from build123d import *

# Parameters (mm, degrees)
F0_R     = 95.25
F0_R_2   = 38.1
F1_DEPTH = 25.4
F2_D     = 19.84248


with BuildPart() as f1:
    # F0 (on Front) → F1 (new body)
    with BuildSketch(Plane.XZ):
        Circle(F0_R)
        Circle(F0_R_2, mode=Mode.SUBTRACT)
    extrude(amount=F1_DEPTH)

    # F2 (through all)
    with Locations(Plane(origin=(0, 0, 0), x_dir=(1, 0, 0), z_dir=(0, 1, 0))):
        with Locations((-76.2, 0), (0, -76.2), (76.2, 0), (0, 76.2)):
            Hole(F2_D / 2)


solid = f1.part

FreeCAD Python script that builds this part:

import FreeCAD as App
import Part
import Sketcher
from FreeCAD import Vector
Q = App.Units.Quantity

doc = App.newDocument("Part")
params = doc.addObject("Spreadsheet::Sheet", "Params")
for row, (alias, value) in enumerate([
    ("sketch1_diameter", "3 in"),
    ("sketch1_diameter2", "7.5 in"),
    ("pad1_length", "1 in"),
    ("hole_diameter", "0.7812 in"),
], start=1):
    params.set(f"A{row}", alias)
    params.set(f"B{row}", "=" + value)
    params.setAlias(f"B{row}", alias)

body = doc.addObject("PartDesign::Body", "Body")

sketch1 = body.newObject("Sketcher::SketchObject", "Sketch")
sketch1.AttachmentSupport = (doc.getObject("XZ_Plane"), [""])
sketch1.MapMode = "FlatFace"
sketch1.addGeometry([
    Part.Circle(Vector(0, 0, 0), Vector(0, 0, 1), 95),
    Part.Circle(Vector(0, 0, 0), Vector(0, 0, 1), 38),
], False)
sketch1.addConstraint([
    Sketcher.Constraint("Coincident", 0, 3, -1, 1),
    Sketcher.Constraint("Coincident", 1, 3, -1, 1),
    Sketcher.Constraint("Diameter", 1, Q("3 in")),
    Sketcher.Constraint("Diameter", 0, Q("7.5 in")),
])
sketch1.setExpression("Constraints[2]", "Params.sketch1_diameter")
sketch1.setExpression("Constraints[3]", "Params.sketch1_diameter2")
pad1 = body.newObject("PartDesign::Pad", "Pad")
pad1.Profile = sketch1
pad1.setExpression("Length", "Params.pad1_length")

sketch2 = body.newObject("Sketcher::SketchObject", "Sketch001")
sketch2.AttachmentSupport = (doc.getObject("XZ_Plane"), [""])
sketch2.MapMode = "FlatFace"
sketch2.addGeometry([
    Part.Circle(Vector(-76, 0, 0), Vector(0, 0, 1), 10),
    Part.Circle(Vector(0, 76, 0), Vector(0, 0, 1), 10),
    Part.Circle(Vector(76, 0, 0), Vector(0, 0, 1), 10),
    Part.Circle(Vector(0, -76, 0), Vector(0, 0, 1), 10),
], False)
sketch2.addConstraint([
    Sketcher.Constraint("Equal", 0, 1),
    Sketcher.Constraint("Equal", 1, 2),
    Sketcher.Constraint("Equal", 2, 3),
    Sketcher.Constraint("Symmetric", 0, 3, 2, 3, -1, 1),
    Sketcher.Constraint("Symmetric", 1, 3, 3, 3, -1, 1),
    Sketcher.Constraint("PointOnObject", 0, 3, -1),
    Sketcher.Constraint("PointOnObject", 1, 3, -2),
    Sketcher.Constraint("DistanceX", 0, 3, -1, 1, Q("3 in")),
    Sketcher.Constraint("DistanceY", -1, 1, 1, 3, Q("3 in")),
    Sketcher.Constraint("Diameter", 0, Q("0.7812 in")),
])
doc.recompute()
hole = body.newObject("PartDesign::Hole", "Hole")
hole.Profile = sketch2
hole.ThreadType = "None"
hole.setExpression("Diameter", "Params.hole_diameter")
hole.DepthType = "ThroughAll"
hole.Reversed = True

doc.recompute()
